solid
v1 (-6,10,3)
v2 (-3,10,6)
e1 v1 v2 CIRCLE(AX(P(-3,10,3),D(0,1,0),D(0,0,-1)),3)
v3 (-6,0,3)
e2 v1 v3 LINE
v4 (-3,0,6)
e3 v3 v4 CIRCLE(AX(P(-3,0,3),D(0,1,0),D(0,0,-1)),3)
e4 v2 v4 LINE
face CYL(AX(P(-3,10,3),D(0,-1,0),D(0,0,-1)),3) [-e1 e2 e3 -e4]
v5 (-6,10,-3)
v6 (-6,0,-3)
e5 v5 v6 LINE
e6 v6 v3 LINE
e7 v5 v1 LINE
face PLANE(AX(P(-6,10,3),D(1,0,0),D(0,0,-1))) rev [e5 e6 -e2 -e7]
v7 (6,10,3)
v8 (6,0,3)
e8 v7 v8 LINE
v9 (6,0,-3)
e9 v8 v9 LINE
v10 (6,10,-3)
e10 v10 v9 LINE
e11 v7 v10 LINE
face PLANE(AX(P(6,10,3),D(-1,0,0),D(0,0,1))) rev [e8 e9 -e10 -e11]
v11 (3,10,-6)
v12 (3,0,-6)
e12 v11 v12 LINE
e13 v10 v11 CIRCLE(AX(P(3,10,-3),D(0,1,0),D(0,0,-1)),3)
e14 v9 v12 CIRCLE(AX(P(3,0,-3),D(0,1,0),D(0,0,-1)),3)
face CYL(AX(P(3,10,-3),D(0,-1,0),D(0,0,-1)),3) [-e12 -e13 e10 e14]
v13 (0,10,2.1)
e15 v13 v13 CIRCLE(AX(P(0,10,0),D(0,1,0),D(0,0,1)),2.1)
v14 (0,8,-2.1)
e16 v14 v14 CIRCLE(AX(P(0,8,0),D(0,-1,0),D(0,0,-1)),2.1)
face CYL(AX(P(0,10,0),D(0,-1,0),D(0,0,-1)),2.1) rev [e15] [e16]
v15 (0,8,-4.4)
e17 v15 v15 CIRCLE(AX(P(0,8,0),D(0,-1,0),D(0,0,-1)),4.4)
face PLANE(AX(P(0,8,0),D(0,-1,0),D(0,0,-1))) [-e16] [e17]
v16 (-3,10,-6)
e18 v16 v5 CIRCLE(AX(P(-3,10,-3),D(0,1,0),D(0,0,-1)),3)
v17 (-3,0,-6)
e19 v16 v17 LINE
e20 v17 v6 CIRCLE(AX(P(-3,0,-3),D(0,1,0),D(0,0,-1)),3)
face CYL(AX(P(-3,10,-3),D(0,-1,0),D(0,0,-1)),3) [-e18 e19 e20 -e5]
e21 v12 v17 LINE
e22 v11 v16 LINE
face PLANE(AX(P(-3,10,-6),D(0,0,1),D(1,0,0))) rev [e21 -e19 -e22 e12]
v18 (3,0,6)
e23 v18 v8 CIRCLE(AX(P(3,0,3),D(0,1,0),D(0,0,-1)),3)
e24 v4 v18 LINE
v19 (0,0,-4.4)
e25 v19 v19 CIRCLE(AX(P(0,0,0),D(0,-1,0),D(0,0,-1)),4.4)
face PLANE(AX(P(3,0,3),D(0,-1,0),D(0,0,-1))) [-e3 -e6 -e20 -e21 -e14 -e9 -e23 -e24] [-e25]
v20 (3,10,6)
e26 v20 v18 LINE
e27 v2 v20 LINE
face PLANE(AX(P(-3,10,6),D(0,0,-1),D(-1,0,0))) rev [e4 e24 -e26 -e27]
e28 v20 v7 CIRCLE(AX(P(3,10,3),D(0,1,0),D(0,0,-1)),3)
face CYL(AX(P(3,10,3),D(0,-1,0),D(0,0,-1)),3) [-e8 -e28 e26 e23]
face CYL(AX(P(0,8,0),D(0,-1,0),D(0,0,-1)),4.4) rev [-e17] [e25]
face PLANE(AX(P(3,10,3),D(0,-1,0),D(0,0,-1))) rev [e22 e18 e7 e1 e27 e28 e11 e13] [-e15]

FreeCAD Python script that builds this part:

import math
import FreeCAD as App
import Part
import Sketcher
from FreeCAD import Vector
Q = App.Units.Quantity

doc = App.newDocument("Part")
body = doc.addObject("PartDesign::Body", "Body")

# Sketch on XZ plane
sketch1 = doc.addObject("Sketcher::SketchObject", "Sketch")
body.addObject(sketch1)
sketch1.AttachmentSupport = (doc.XZ_Plane, [""])
sketch1.MapMode = "FlatFace"
sketch1.addGeometry(Part.LineSegment(Vector(-3, 6, 0), Vector(3, 6, 0)), False)
sketch1.addGeometry(Part.ArcOfCircle(Part.Circle(Vector(3, 3, 0), Vector(0, 0, 1), 3), math.radians(0), math.radians(90)), False)
sketch1.addGeometry(Part.LineSegment(Vector(6, 3, 0), Vector(6, -3, 0)), False)
sketch1.addGeometry(Part.ArcOfCircle(Part.Circle(Vector(3, -3, 0), Vector(0, 0, 1), 3), math.radians(-90), math.radians(0)), False)
sketch1.addGeometry(Part.LineSegment(Vector(3, -6, 0), Vector(-3, -6, 0)), False)
sketch1.addGeometry(Part.ArcOfCircle(Part.Circle(Vector(-3, -3, 0), Vector(0, 0, 1), 3), math.radians(180), math.radians(270)), False)
sketch1.addGeometry(Part.LineSegment(Vector(-6, -3, 0), Vector(-6, 3, 0)), False)
sketch1.addGeometry(Part.ArcOfCircle(Part.Circle(Vector(-3, 3, 0), Vector(0, 0, 1), 3), math.radians(90), math.radians(180)), False)
sketch1.addGeometry(Part.Circle(Vector(0, 0, 0), Vector(0, 0, 1), 2.1), False)
sketch1.addConstraint(Sketcher.Constraint("Tangent", 0, 2, 1, 2))
sketch1.addConstraint(Sketcher.Constraint("Tangent", 1, 1, 2, 1))
sketch1.addConstraint(Sketcher.Constraint("Tangent", 2, 2, 3, 2))
sketch1.addConstraint(Sketcher.Constraint("Tangent", 3, 1, 4, 1))
sketch1.addConstraint(Sketcher.Constraint("Tangent", 4, 2, 5, 2))
sketch1.addConstraint(Sketcher.Constraint("Tangent", 5, 1, 6, 1))
sketch1.addConstraint(Sketcher.Constraint("Tangent", 6, 2, 7, 2))
sketch1.addConstraint(Sketcher.Constraint("Tangent", 7, 1, 0, 1))
sketch1.addConstraint(Sketcher.Constraint("Horizontal", 0))
sketch1.addConstraint(Sketcher.Constraint("Vertical", 2))
sketch1.addConstraint(Sketcher.Constraint("Horizontal", 4))
sketch1.addConstraint(Sketcher.Constraint("Vertical", 6))
sketch1.addConstraint(Sketcher.Constraint("Coincident", 8, 3, -1, 1))
sketch1.addConstraint(Sketcher.Constraint("Equal", 1, 3))
sketch1.addConstraint(Sketcher.Constraint("Equal", 3, 5))
sketch1.addConstraint(Sketcher.Constraint("Equal", 5, 7))
sketch1.addConstraint(Sketcher.Constraint("Symmetric", 1, 3, 5, 3, -1, 1))
sketch1.addConstraint(Sketcher.Constraint("Equal", 4, 2))
sketch1.addConstraint(Sketcher.Constraint("Radius", 1, Q("3 mm")))
sketch1.addConstraint(Sketcher.Constraint("Diameter", 8, Q("4.2 mm")))
sketch1.addConstraint(Sketcher.Constraint("DistanceX", 0, 1, 0, 2, Q("6 mm")))
pad1 = doc.addObject("PartDesign::Pad", "Pad")
body.addObject(pad1)
pad1.Profile = sketch1
pad1.Length = 10
pad1.Reversed = True

# Sketch on XZ plane
sketch2 = doc.addObject("Sketcher::SketchObject", "Sketch001")
body.addObject(sketch2)
sketch2.AttachmentSupport = (doc.XZ_Plane, [""])
sketch2.MapMode = "FlatFace"
sketch2.addGeometry(Part.Circle(Vector(0, 0, 0), Vector(0, 0, 1), 4.4), False)
sketch2.addConstraint(Sketcher.Constraint("Coincident", 0, 3, -1, 1))
sketch2.addConstraint(Sketcher.Constraint("Diameter", 0, Q("8.8 mm")))
pocket1 = doc.addObject("PartDesign::Pocket", "Pocket")
body.addObject(pocket1)
pocket1.Profile = sketch2
pocket1.Length = 8

doc.recompute()
